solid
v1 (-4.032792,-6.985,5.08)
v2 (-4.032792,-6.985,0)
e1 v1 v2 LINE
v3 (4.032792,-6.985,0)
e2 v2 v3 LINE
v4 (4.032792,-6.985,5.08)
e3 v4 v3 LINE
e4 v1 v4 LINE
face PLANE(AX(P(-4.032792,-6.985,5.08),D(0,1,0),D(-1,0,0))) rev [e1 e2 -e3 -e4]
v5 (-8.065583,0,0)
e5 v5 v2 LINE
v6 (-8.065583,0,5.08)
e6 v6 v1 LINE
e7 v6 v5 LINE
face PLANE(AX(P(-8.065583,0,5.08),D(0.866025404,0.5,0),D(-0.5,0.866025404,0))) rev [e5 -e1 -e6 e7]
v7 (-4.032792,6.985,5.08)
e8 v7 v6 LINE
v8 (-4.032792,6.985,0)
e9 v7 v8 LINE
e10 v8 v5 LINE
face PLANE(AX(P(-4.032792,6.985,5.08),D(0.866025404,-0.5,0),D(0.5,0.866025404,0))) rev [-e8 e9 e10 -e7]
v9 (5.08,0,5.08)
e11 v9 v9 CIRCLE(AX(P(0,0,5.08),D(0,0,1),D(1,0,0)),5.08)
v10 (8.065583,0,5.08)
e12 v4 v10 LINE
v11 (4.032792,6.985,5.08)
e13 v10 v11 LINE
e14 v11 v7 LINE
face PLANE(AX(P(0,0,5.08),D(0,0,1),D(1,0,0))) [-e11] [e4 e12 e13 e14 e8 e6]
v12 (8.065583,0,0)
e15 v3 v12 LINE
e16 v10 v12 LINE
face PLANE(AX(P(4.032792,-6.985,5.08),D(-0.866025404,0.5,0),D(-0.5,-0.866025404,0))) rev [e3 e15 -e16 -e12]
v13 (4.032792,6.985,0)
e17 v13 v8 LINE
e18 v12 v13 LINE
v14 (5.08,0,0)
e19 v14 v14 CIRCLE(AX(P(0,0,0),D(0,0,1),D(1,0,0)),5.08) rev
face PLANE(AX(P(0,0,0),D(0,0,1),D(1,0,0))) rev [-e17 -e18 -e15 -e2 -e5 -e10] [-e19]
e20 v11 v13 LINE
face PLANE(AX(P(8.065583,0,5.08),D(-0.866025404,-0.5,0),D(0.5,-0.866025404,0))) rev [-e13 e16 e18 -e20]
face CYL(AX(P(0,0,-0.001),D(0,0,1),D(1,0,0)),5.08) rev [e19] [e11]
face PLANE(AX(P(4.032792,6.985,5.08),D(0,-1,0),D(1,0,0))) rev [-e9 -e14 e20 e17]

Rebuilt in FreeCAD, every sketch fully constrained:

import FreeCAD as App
import Part
import Sketcher
Q = App.Units.Quantity

doc = App.newDocument("Part")
body = doc.addObject("PartDesign::Body", "Body")

# Sketch on XY plane
sketch1 = doc.addObject("Sketcher::SketchObject", "Sketch")
body.addObject(sketch1)
sketch1.AttachmentSupport = (doc.XY_Plane, [""])
sketch1.MapMode = "FlatFace"
sketch1.addGeometry([
    Part.LineSegment(App.Vector(8, 0, 0), App.Vector(4, 7, 0)),  # 0
    Part.LineSegment(App.Vector(4, 7, 0), App.Vector(-4, 7, 0)),  # 1
    Part.LineSegment(App.Vector(-4, 7, 0), App.Vector(-8, 0, 0)),  # 2
    Part.LineSegment(App.Vector(-8, 0, 0), App.Vector(-4, -7, 0)),  # 3
    Part.LineSegment(App.Vector(-4, -7, 0), App.Vector(4, -7, 0)),  # 4
    Part.LineSegment(App.Vector(4, -7, 0), App.Vector(8, 0, 0)),  # 5
], False)
sketch1.addConstraint([
    Sketcher.Constraint("Coincident", 0, 2, 1, 1),
    Sketcher.Constraint("Coincident", 1, 2, 2, 1),
    Sketcher.Constraint("Coincident", 2, 2, 3, 1),
    Sketcher.Constraint("Coincident", 3, 2, 4, 1),
    Sketcher.Constraint("Coincident", 4, 2, 5, 1),
    Sketcher.Constraint("Coincident", 5, 2, 0, 1),
    Sketcher.Constraint("Horizontal", 1),
    Sketcher.Constraint("Horizontal", 4),
    Sketcher.Constraint("Symmetric", 0, 2, 3, 2, -1, 1),
    Sketcher.Constraint("Symmetric", 2, 2, 5, 2, -1, 1),
    Sketcher.Constraint("PointOnObject", 2, 2, -1),
    Sketcher.Constraint("Parallel", 2, 5),
    Sketcher.Constraint("Vertical", 1, 2, 3, 2),
    Sketcher.Constraint("Angle", 0, Q("120 deg")),
    Sketcher.Constraint("DistanceY", 3, 2, 1, 2, Q("0.55 in")),
    Sketcher.Constraint("DistanceX", 1, 2, 1, 1, Q("8.065583 mm")),
])
pad1 = doc.addObject("PartDesign::Pad", "Pad")
body.addObject(pad1)
pad1.Profile = sketch1
pad1.Length = Q("0.2 in")

# Sketch on XY plane
sketch2 = doc.addObject("Sketcher::SketchObject", "Sketch001")
body.addObject(sketch2)
sketch2.AttachmentSupport = (doc.XY_Plane, [""])
sketch2.MapMode = "FlatFace"
sketch2.AttachmentOffset = App.Placement(App.Vector(0, 0, 0.2 * 25.4), App.Rotation())
sketch2.addGeometry(Part.Circle(App.Vector(0, 0, 0), App.Vector(0, 0, 1), 5), False)
sketch2.addConstraint([
    Sketcher.Constraint("Coincident", 0, 3, -1, 1),
    Sketcher.Constraint("Diameter", 0, Q("0.4 in")),
])
pocket1 = doc.addObject("PartDesign::Pocket", "Pocket")
body.addObject(pocket1)
pocket1.Profile = sketch2
pocket1.Type = "UpToFirst"

doc.recompute()
